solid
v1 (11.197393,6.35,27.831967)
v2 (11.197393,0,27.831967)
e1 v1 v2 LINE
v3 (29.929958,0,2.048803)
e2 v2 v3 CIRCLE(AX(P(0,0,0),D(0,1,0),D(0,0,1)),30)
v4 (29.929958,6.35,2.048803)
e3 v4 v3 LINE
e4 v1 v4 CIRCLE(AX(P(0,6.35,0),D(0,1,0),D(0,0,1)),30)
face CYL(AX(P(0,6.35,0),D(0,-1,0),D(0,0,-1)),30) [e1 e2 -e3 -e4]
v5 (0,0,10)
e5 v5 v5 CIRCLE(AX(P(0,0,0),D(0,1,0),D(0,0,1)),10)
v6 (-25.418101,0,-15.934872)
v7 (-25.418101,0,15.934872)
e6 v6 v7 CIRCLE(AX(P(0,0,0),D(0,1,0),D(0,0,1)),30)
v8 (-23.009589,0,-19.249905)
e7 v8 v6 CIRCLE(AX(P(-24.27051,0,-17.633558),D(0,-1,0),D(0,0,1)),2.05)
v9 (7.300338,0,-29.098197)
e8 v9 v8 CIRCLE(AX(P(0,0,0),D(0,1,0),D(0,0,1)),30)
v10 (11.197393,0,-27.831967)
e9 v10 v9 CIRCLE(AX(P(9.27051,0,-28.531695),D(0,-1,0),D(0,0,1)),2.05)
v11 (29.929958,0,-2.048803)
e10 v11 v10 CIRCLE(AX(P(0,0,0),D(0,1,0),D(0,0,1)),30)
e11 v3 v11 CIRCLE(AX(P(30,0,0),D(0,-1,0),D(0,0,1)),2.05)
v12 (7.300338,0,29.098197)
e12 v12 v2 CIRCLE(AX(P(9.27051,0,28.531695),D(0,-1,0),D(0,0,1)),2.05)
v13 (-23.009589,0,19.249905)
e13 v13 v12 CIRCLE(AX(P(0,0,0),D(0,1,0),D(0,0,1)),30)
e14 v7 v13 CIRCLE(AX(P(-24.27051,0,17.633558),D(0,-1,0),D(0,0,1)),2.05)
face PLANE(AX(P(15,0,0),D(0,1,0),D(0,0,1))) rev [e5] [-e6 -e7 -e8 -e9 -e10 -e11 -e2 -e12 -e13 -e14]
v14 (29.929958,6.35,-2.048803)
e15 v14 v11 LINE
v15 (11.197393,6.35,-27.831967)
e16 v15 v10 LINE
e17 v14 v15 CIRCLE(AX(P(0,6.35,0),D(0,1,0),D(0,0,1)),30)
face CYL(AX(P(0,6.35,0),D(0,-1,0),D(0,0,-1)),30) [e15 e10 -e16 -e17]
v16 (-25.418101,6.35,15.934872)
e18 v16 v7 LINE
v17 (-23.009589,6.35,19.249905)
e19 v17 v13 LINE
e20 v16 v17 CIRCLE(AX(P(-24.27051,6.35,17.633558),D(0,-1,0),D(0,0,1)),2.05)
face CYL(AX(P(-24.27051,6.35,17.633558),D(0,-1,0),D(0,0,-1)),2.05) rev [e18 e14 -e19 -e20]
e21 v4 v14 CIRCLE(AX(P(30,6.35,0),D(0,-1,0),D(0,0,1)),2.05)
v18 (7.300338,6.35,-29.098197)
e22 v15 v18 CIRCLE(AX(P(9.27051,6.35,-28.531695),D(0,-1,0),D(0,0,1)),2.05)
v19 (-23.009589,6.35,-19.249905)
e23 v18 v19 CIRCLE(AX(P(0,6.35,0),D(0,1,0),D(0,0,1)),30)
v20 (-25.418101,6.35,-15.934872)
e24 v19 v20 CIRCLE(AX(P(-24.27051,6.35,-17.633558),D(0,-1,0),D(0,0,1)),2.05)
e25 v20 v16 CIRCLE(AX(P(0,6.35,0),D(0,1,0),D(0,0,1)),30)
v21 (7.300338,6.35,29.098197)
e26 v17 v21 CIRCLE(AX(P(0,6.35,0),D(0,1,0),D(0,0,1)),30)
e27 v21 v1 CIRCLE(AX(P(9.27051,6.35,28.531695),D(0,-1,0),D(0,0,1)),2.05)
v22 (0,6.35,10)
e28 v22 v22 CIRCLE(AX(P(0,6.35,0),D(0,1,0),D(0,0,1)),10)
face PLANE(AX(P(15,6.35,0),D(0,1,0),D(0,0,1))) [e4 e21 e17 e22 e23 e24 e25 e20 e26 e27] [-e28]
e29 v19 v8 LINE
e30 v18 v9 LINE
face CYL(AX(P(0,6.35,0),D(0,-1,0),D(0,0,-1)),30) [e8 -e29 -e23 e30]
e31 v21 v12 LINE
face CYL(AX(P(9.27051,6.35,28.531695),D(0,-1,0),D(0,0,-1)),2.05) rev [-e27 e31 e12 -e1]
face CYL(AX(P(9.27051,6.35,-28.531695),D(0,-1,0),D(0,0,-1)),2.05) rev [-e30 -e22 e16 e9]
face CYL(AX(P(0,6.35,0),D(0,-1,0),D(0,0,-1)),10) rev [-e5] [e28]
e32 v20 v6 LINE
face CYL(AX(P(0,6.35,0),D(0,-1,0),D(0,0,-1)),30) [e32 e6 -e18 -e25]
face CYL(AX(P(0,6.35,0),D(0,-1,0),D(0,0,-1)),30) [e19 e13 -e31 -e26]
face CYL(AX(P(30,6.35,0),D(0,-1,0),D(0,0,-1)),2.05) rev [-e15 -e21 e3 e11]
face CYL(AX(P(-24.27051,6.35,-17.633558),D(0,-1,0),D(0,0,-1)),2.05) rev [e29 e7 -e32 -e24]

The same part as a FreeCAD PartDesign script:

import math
import FreeCAD as App
import Part
import Sketcher
Q = App.Units.Quantity

doc = App.newDocument("Part")
params = doc.addObject("Spreadsheet::Sheet", "Params")
for row, (alias, value) in enumerate([
    ("sketch1_diameter", "20 mm"),
    ("sketch1_radius", "30 mm"),
    ("sketch1_radius2", "2.05 mm"),
    ("pad1_length", "6.35 mm"),
], start=1):
    params.set(f"A{row}", alias)
    params.set(f"B{row}", "=" + value)
    params.setAlias(f"B{row}", alias)

body = doc.addObject("PartDesign::Body", "Body")

# Sketch on XZ plane
sketch1 = body.newObject("Sketcher::SketchObject", "Sketch")
sketch1.AttachmentSupport = (doc.getObject("XZ_Plane"), [""])
sketch1.MapMode = "FlatFace"
sketch1.addGeometry([
    Part.ArcOfCircle(Part.Circle(App.Vector(0, 0, 0), App.Vector(0, 0, 1), 30), math.radians(-68.084026), math.radians(-3.915974)),  # 0
    Part.ArcOfCircle(Part.Circle(App.Vector(9.27051, -28.531695, 0), App.Vector(0, 0, 1), 2.05), math.radians(19.957987), math.radians(196.042013)),  # 1
    Part.ArcOfCircle(Part.Circle(App.Vector(0, 0, 0), App.Vector(0, 0, 1), 30), math.radians(-140.084026), math.radians(-75.915974)),  # 2
    Part.ArcOfCircle(Part.Circle(App.Vector(-24.27051, -17.633558, 0), App.Vector(0, 0, 1), 2.05), math.radians(-52.042013), math.radians(124.042013)),  # 3
    Part.ArcOfCircle(Part.Circle(App.Vector(0, 0, 0), App.Vector(0, 0, 1), 30), math.radians(147.915974), math.radians(212.084026)),  # 4
    Part.ArcOfCircle(Part.Circle(App.Vector(-24.27051, 17.633558, 0), App.Vector(0, 0, 1), 2.05), math.radians(-124.042013), math.radians(52.042013)),  # 5
    Part.ArcOfCircle(Part.Circle(App.Vector(0, 0, 0), App.Vector(0, 0, 1), 30), math.radians(75.915974), math.radians(140.084026)),  # 6
    Part.ArcOfCircle(Part.Circle(App.Vector(9.27051, 28.531695, 0), App.Vector(0, 0, 1), 2.05), math.radians(163.957987), math.radians(340.042013)),  # 7
    Part.ArcOfCircle(Part.Circle(App.Vector(0, 0, 0), App.Vector(0, 0, 1), 30), math.radians(3.915974), math.radians(68.084026)),  # 8
    Part.ArcOfCircle(Part.Circle(App.Vector(30, 0, 0), App.Vector(0, 0, 1), 2.05), math.radians(91.957987), math.radians(268.042013)),  # 9
    Part.Circle(App.Vector(0, 0, 0), App.Vector(0, 0, 1), 10),  # 10
], False)
sketch1.addConstraint([
    Sketcher.Constraint("Coincident", 0, 1, 1, 1),
    Sketcher.Constraint("Coincident", 1, 2, 2, 2),
    Sketcher.Constraint("Coincident", 2, 1, 3, 1),
    Sketcher.Constraint("Coincident", 3, 2, 4, 2),
    Sketcher.Constraint("Coincident", 4, 1, 5, 1),
    Sketcher.Constraint("Coincident", 5, 2, 6, 2),
    Sketcher.Constraint("Coincident", 6, 1, 7, 1),
    Sketcher.Constraint("Coincident", 7, 2, 8, 2),
    Sketcher.Constraint("Coincident", 8, 1, 9, 1),
    Sketcher.Constraint("Coincident", 9, 2, 0, 2),
    Sketcher.Constraint("Coincident", 0, 3, -1, 1),
    Sketcher.Constraint("Coincident", 2, 3, -1, 1),
    Sketcher.Constraint("Coincident", 4, 3, -1, 1),
    Sketcher.Constraint("Coincident", 6, 3, -1, 1),
    Sketcher.Constraint("Coincident", 8, 3, -1, 1),
    Sketcher.Constraint("Coincident", 10, 3, -1, 1),
    Sketcher.Constraint("Equal", 0, 2),
    Sketcher.Constraint("Equal", 1, 3),
    Sketcher.Constraint("Equal", 2, 4),
    Sketcher.Constraint("Equal", 3, 5),
    Sketcher.Constraint("Equal", 4, 6),
    Sketcher.Constraint("Equal", 5, 7),
    Sketcher.Constraint("Equal", 6, 8),
    Sketcher.Constraint("Equal", 7, 9),
    Sketcher.Constraint("Symmetric", 3, 3, 5, 3, -1),
    Sketcher.Constraint("Symmetric", 1, 3, 7, 3, -1),
    Sketcher.Constraint("PointOnObject", 9, 3, -1),
    Sketcher.Constraint("Diameter", 10, Q("20 mm")),
    Sketcher.Constraint("Radius", 0, Q("30 mm")),
    Sketcher.Constraint("Radius", 1, Q("2.05 mm")),
    Sketcher.Constraint("DistanceX", -1, 1, 9, 3, Q("30 mm")),
    Sketcher.Constraint("DistanceX", 3, 2, -1, 1, Q("25.418101 mm")),
    Sketcher.Constraint("DistanceY", 1, 2, 1, 3, Q("0.566501 mm")),
    Sketcher.Constraint("DistanceX", -1, 1, 1, 3, Q("9.27051 mm")),
    Sketcher.Constraint("DistanceX", 3, 3, -1, 1, Q("24.27051 mm")),
])
sketch1.setExpression("Constraints[27]", "Params.sketch1_diameter")
sketch1.setExpression("Constraints[28]", "Params.sketch1_radius")
sketch1.setExpression("Constraints[29]", "Params.sketch1_radius2")
pad1 = body.newObject("PartDesign::Pad", "Pad")
pad1.Profile = sketch1
pad1.setExpression("Length", "Params.pad1_length")
pad1.Reversed = True

doc.recompute()
